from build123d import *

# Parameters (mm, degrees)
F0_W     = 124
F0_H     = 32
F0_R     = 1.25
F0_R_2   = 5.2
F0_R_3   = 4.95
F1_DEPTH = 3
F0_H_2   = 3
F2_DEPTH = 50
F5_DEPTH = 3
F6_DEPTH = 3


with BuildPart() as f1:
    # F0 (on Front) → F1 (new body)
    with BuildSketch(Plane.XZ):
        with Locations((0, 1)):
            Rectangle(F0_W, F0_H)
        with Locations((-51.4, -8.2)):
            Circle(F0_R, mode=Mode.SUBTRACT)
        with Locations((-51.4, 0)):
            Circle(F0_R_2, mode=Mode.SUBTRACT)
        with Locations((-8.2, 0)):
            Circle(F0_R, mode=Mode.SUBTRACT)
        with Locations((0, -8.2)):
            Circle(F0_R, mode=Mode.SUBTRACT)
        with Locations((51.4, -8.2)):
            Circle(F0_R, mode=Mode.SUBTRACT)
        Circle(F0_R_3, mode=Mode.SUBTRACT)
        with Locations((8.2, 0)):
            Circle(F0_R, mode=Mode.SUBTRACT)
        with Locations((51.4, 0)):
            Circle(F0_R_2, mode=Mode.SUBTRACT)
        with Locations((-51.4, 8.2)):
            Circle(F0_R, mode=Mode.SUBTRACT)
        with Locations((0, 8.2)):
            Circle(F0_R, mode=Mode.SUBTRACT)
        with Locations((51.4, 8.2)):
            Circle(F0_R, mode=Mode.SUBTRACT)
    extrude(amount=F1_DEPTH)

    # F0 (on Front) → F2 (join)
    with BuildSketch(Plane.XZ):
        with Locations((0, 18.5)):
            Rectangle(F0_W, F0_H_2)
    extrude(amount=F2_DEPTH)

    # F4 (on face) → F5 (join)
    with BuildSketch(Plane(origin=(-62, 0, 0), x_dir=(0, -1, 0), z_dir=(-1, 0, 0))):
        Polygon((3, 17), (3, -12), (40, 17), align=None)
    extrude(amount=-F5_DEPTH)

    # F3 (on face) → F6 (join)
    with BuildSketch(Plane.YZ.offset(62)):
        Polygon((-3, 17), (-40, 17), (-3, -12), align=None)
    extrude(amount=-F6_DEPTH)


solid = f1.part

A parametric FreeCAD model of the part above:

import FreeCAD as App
import Part
import Sketcher
from FreeCAD import Vector
Q = App.Units.Quantity


def add_polygon(sketch, points):
    """Adds a closed chain of lines whose ends are joined by coincident constraints."""
    first, n = sketch.GeometryCount, len(points)
    for a, b in zip(points, points[1:] + points[:1]):
        sketch.addGeometry(Part.LineSegment(App.Vector(*a, 0), App.Vector(*b, 0)), False)
    for i in range(n):
        sketch.addConstraint(Sketcher.Constraint("Coincident", first + i, 2, first + (i + 1) % n, 1))

doc = App.newDocument("Part")
body = doc.addObject("PartDesign::Body", "Body")

# Sketch on XZ plane
sketch1 = body.newObject("Sketcher::SketchObject", "Sketch")
sketch1.AttachmentSupport = (doc.getObject("XZ_Plane"), [""])
sketch1.MapMode = "FlatFace"
add_polygon(sketch1, [(-62, 17), (-62, -15), (62, -15), (62, 17)])  # lines 0-3
sketch1.addGeometry(Part.Circle(Vector(-51.4, -8.2, 0), Vector(0, 0, 1), 1.25), False)  # 4
sketch1.addGeometry(Part.Circle(Vector(0, -8.2, 0), Vector(0, 0, 1), 1.25), False)  # 5
sketch1.addGeometry(Part.Circle(Vector(51.4, -8.2, 0), Vector(0, 0, 1), 1.25), False)  # 6
sketch1.addGeometry(Part.Circle(Vector(-51.4, 0, 0), Vector(0, 0, 1), 5.2), False)  # 7
sketch1.addGeometry(Part.Circle(Vector(-8.2, 0, 0), Vector(0, 0, 1), 1.25), False)  # 8
sketch1.addGeometry(Part.Circle(Vector(-51.4, 8.2, 0), Vector(0, 0, 1), 1.25), False)  # 9
sketch1.addGeometry(Part.Circle(Vector(0, 0, 0), Vector(0, 0, 1), 4.95), False)  # 10
sketch1.addGeometry(Part.Circle(Vector(8.2, 0, 0), Vector(0, 0, 1), 1.25), False)  # 11
sketch1.addGeometry(Part.Circle(Vector(51.4, 0, 0), Vector(0, 0, 1), 5.2), False)  # 12
sketch1.addGeometry(Part.Circle(Vector(0, 8.2, 0), Vector(0, 0, 1), 1.25), False)  # 13
sketch1.addGeometry(Part.Circle(Vector(51.4, 8.2, 0), Vector(0, 0, 1), 1.25), False)  # 14
sketch1.addConstraint(Sketcher.Constraint("Vertical", 0))
sketch1.addConstraint(Sketcher.Constraint("Horizontal", 1))
sketch1.addConstraint(Sketcher.Constraint("Vertical", 2))
sketch1.addConstraint(Sketcher.Constraint("Horizontal", 3))
sketch1.addConstraint(Sketcher.Constraint("Coincident", 10, 3, -1, 1))
sketch1.addConstraint(Sketcher.Constraint("Equal", 4, 5))
sketch1.addConstraint(Sketcher.Constraint("Equal", 5, 6))
sketch1.addConstraint(Sketcher.Constraint("Equal", 6, 8))
sketch1.addConstraint(Sketcher.Constraint("Equal", 8, 9))
sketch1.addConstraint(Sketcher.Constraint("Equal", 9, 11))
sketch1.addConstraint(Sketcher.Constraint("Equal", 7, 12))
sketch1.addConstraint(Sketcher.Constraint("Equal", 11, 13))
sketch1.addConstraint(Sketcher.Constraint("Equal", 13, 14))
sketch1.addConstraint(Sketcher.Constraint("Symmetric", 6, 3, 9, 3, -1, 1))
sketch1.addConstraint(Sketcher.Constraint("Symmetric", 8, 3, 11, 3, -1, 1))
sketch1.addConstraint(Sketcher.Constraint("Symmetric", 7, 3, 12, 3, -1, 1))
sketch1.addConstraint(Sketcher.Constraint("Symmetric", 5, 3, 13, 3, -1, 1))
sketch1.addConstraint(Sketcher.Constraint("Symmetric", 4, 3, 14, 3, -1, 1))
sketch1.addConstraint(Sketcher.Constraint("Symmetric", 4, 3, 6, 3, -2))
sketch1.addConstraint(Sketcher.Constraint("PointOnObject", 5, 3, -2))
sketch1.addConstraint(Sketcher.Constraint("PointOnObject", 7, 3, -1))
sketch1.addConstraint(Sketcher.Constraint("PointOnObject", 8, 3, -1))
sketch1.addConstraint(Sketcher.Constraint("Horizontal", 4, 3, 5, 3))
sketch1.addConstraint(Sketcher.Constraint("Vertical", 4, 3, 7, 3))
sketch1.addConstraint(Sketcher.Constraint("Diameter", 4, Q("2.5 mm")))
sketch1.addConstraint(Sketcher.Constraint("Diameter", 7, Q("10.4 mm")))
sketch1.addConstraint(Sketcher.Constraint("Diameter", 10, Q("9.9 mm")))
sketch1.addConstraint(Sketcher.Constraint("DistanceX", 1, 1, 1, 2, Q("124 mm")))
sketch1.addConstraint(Sketcher.Constraint("DistanceY", 0, 2, 0, 1, Q("32 mm")))
sketch1.addConstraint(Sketcher.Constraint("DistanceX", 0, 2, -1, 1, Q("62 mm")))
sketch1.addConstraint(Sketcher.Constraint("DistanceY", 0, 2, -1, 1, Q("15 mm")))
sketch1.addConstraint(Sketcher.Constraint("DistanceX", 4, 3, -1, 1, Q("51.4 mm")))
sketch1.addConstraint(Sketcher.Constraint("DistanceY", 4, 3, -1, 1, Q("8.2 mm")))
sketch1.addConstraint(Sketcher.Constraint("DistanceX", 8, 3, -1, 1, Q("8.2 mm")))
pad1 = body.newObject("PartDesign::Pad", "Pad")
pad1.Profile = sketch1
pad1.Length = 3

# Sketch on XZ plane
sketch2 = body.newObject("Sketcher::SketchObject", "Sketch001")
sketch2.AttachmentSupport = (doc.getObject("XZ_Plane"), [""])
sketch2.MapMode = "FlatFace"
add_polygon(sketch2, [(-62, 20), (-62, 17), (62, 17), (62, 20)])  # lines 0-3
sketch2.addConstraint(Sketcher.Constraint("Vertical", 0))
sketch2.addConstraint(Sketcher.Constraint("Horizontal", 1))
sketch2.addConstraint(Sketcher.Constraint("Vertical", 2))
sketch2.addConstraint(Sketcher.Constraint("Horizontal", 3))
sketch2.addConstraint(Sketcher.Constraint("DistanceX", 1, 1, 1, 2, Q("124 mm")))
sketch2.addConstraint(Sketcher.Constraint("DistanceY", 0, 2, 0, 1, Q("3 mm")))
sketch2.addConstraint(Sketcher.Constraint("DistanceX", 0, 2, -1, 1, Q("62 mm")))
sketch2.addConstraint(Sketcher.Constraint("DistanceY", -1, 1, 0, 2, Q("17 mm")))
pad2 = body.newObject("PartDesign::Pad", "Pad001")
pad2.Profile = sketch2
pad2.Length = 50

# Sketch on YZ plane
sketch3 = body.newObject("Sketcher::SketchObject", "Sketch002")
sketch3.AttachmentSupport = (doc.getObject("YZ_Plane"), [""])
sketch3.MapMode = "FlatFace"
sketch3.AttachmentOffset = App.Placement(Vector(0, 0, -62), App.Rotation())
add_polygon(sketch3, [(-3, 17), (-3, -12), (-40, 17)])  # lines 0-2
sketch3.addConstraint(Sketcher.Constraint("Vertical", 0))
sketch3.addConstraint(Sketcher.Constraint("Horizontal", 2))
sketch3.addConstraint(Sketcher.Constraint("DistanceX", 2, 1, 2, 2, Q("37 mm")))
sketch3.addConstraint(Sketcher.Constraint("DistanceY", 0, 2, 0, 1, Q("29 mm")))
sketch3.addConstraint(Sketcher.Constraint("DistanceX", 0, 2, -1, 1, Q("3 mm")))
sketch3.addConstraint(Sketcher.Constraint("DistanceY", 0, 2, -1, 1, Q("12 mm")))
pad3 = body.newObject("PartDesign::Pad", "Pad002")
pad3.Profile = sketch3
pad3.Length = 3

# Sketch on YZ plane
sketch4 = body.newObject("Sketcher::SketchObject", "Sketch003")
sketch4.AttachmentSupport = (doc.getObject("YZ_Plane"), [""])
sketch4.MapMode = "FlatFace"
sketch4.AttachmentOffset = App.Placement(Vector(0, 0, 62), App.Rotation())
add_polygon(sketch4, [(-3, 17), (-40, 17), (-3, -12)])  # lines 0-2
sketch4.addConstraint(Sketcher.Constraint("Horizontal", 0))
sketch4.addConstraint(Sketcher.Constraint("Vertical", 2))
sketch4.addConstraint(Sketcher.Constraint("DistanceX", 0, 2, 0, 1, Q("37 mm")))
sketch4.addConstraint(Sketcher.Constraint("DistanceY", 2, 1, 2, 2, Q("29 mm")))
sketch4.addConstraint(Sketcher.Constraint("DistanceX", 0, 2, -1, 1, Q("40 mm")))
sketch4.addConstraint(Sketcher.Constraint("DistanceY", -1, 1, 0, 2, Q("17 mm")))
pad4 = body.newObject("PartDesign::Pad", "Pad003")
pad4.Profile = sketch4
pad4.Length = 3
pad4.Reversed = True

doc.recompute()
